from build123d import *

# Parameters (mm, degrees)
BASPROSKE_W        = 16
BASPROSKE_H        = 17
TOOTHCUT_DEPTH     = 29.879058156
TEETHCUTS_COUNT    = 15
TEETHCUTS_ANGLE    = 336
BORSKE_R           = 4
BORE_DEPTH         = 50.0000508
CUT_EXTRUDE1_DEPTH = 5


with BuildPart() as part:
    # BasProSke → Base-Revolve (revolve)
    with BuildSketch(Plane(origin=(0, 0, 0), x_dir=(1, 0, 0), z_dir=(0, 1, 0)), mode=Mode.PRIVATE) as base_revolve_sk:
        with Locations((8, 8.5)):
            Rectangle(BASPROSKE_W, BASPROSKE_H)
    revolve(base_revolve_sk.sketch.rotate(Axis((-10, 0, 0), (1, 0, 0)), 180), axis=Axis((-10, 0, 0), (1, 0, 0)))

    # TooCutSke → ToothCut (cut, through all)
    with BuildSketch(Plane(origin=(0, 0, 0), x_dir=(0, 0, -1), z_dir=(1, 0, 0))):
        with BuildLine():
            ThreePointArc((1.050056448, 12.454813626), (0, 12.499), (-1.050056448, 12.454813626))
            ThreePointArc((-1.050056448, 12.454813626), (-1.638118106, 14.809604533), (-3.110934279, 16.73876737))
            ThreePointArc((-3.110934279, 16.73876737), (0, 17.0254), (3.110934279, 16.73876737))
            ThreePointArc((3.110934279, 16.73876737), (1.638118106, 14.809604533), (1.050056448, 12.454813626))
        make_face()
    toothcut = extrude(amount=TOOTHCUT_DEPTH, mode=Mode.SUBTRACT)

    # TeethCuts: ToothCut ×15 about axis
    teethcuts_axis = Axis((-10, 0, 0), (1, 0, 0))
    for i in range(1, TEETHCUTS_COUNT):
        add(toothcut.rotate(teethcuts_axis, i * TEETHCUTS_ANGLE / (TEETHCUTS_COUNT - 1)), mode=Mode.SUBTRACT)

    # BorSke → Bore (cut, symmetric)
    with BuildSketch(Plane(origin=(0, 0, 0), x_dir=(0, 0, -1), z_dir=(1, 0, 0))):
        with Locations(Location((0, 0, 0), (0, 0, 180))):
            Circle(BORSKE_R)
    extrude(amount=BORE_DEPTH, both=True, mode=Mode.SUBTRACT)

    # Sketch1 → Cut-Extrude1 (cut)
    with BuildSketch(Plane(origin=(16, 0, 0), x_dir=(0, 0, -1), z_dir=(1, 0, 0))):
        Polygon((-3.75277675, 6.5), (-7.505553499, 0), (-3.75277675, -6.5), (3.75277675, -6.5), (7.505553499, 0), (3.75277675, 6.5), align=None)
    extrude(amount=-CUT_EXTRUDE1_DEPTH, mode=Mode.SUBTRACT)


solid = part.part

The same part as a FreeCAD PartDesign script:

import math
import FreeCAD as App
import Part
import Sketcher
Q = App.Units.Quantity

doc = App.newDocument("Part")
body = doc.addObject("PartDesign::Body", "Body")

# Sketch on XZ plane
sketch1 = doc.addObject("Sketcher::SketchObject", "Sketch")
body.addObject(sketch1)
sketch1.AttachmentSupport = (doc.XZ_Plane, [""])
sketch1.MapMode = "FlatFace"
sketch1.addGeometry([
    Part.LineSegment(App.Vector(0, -17, 0), App.Vector(0, 0, 0)),
    Part.LineSegment(App.Vector(0, 0, 0), App.Vector(16, 0, 0)),
    Part.LineSegment(App.Vector(16, 0, 0), App.Vector(16, -17, 0)),
    Part.LineSegment(App.Vector(16, -17, 0), App.Vector(0, -17, 0)),
], False)
sketch1.addConstraint([
    Sketcher.Constraint("Coincident", 0, 2, 1, 1),
    Sketcher.Constraint("Coincident", 1, 2, 2, 1),
    Sketcher.Constraint("Coincident", 2, 2, 3, 1),
    Sketcher.Constraint("Coincident", 3, 2, 0, 1),
    Sketcher.Constraint("Vertical", 0),
    Sketcher.Constraint("Horizontal", 1),
    Sketcher.Constraint("Vertical", 2),
    Sketcher.Constraint("Horizontal", 3),
    Sketcher.Constraint("Coincident", 0, 2, -1, 1),
    Sketcher.Constraint("DistanceX", 1, 1, 1, 2, 16.0),
    Sketcher.Constraint("DistanceY", 0, 1, 0, 2, 17.0),
])
revolution = doc.addObject("PartDesign::Revolution", "Revolution")
body.addObject(revolution)
revolution.Profile = sketch1
revolution.ReferenceAxis = (sketch1, ["H_Axis"])
revolution.Angle = 360

# Sketch on YZ plane
sketch2 = doc.addObject("Sketcher::SketchObject", "Sketch001")
body.addObject(sketch2)
sketch2.AttachmentSupport = (doc.YZ_Plane, [""])
sketch2.MapMode = "FlatFace"
sketch2.addGeometry([
    Part.ArcOfCircle(Part.Circle(App.Vector(0, 0, 0), App.Vector(0, 0, 1), 12.499), math.radians(-4.81917), math.radians(4.81917)),
    Part.ArcOfCircle(Part.Circle(App.Vector(12.208521, -7.044999, 0), App.Vector(0, 0, 1), 6), math.radians(40.971042), math.radians(87.647418)),
    Part.ArcOfCircle(Part.Circle(App.Vector(0, 0, 0), App.Vector(0, 0, 1), 17.0254), math.radians(-10.528414), math.radians(10.528414)),
    Part.ArcOfCircle(Part.Circle(App.Vector(12.208521, 7.044999, 0), App.Vector(0, 0, 1), 6), math.radians(-87.647418), math.radians(-40.971042)),
], False)
sketch2.addConstraint([
    Sketcher.Constraint("Coincident", 0, 1, 1, 2),
    Sketcher.Constraint("Coincident", 1, 1, 2, 1),
    Sketcher.Constraint("Coincident", 2, 2, 3, 2),
    Sketcher.Constraint("Coincident", 3, 1, 0, 2),
    Sketcher.Constraint("Coincident", 0, 3, -1, 1),
    Sketcher.Constraint("Coincident", 2, 3, -1, 1),
    Sketcher.Constraint("Equal", 1, 3),
    Sketcher.Constraint("Symmetric", 1, 3, 3, 3, -1),
    Sketcher.Constraint("Radius", 1, 6.0),
    Sketcher.Constraint("Radius", 0, 12.499),
    Sketcher.Constraint("Radius", 2, 17.0254),
    Sketcher.Constraint("DistanceY", 1, 3, 3, 3, 14.089999),
    Sketcher.Constraint("DistanceX", -1, 1, 1, 3, 12.208521),
])
pocket1 = doc.addObject("PartDesign::Pocket", "Pocket")
body.addObject(pocket1)
pocket1.Profile = sketch2
pocket1.Type = "ThroughAll"
pocket1.Reversed = True
doc.recompute()

polarpattern = doc.addObject("PartDesign::PolarPattern", "PolarPattern")
body.addObject(polarpattern)
polarpattern.Originals = [pocket1]
polarpattern.Axis = (doc.X_Axis, [""])
polarpattern.Angle = 360
polarpattern.Occurrences = 15
body.Tip = polarpattern

# Sketch on YZ plane
sketch3 = doc.addObject("Sketcher::SketchObject", "Sketch002")
body.addObject(sketch3)
sketch3.AttachmentSupport = (doc.YZ_Plane, [""])
sketch3.MapMode = "FlatFace"
sketch3.addGeometry(Part.Circle(App.Vector(0, 0, 0), App.Vector(0, 0, 1), 4), False)
sketch3.addConstraint([
    Sketcher.Constraint("Coincident", 0, 3, -1, 1),
    Sketcher.Constraint("Diameter", 0, 8.0),
])
pocket2 = doc.addObject("PartDesign::Pocket", "Pocket001")
body.addObject(pocket2)
pocket2.Profile = sketch3
pocket2.Length = 100.000102
pocket2.Midplane = True

# Sketch on YZ plane
sketch4 = doc.addObject("Sketcher::SketchObject", "Sketch003")
body.addObject(sketch4)
sketch4.AttachmentSupport = (doc.YZ_Plane, [""])
sketch4.MapMode = "FlatFace"
sketch4.AttachmentOffset = App.Placement(App.Vector(0, 0, 16), App.Rotation())
sketch4.addGeometry([
    Part.LineSegment(App.Vector(6.5, 3.752777, 0), App.Vector(0, 7.505553, 0)),  # 0
    Part.LineSegment(App.Vector(0, 7.505553, 0), App.Vector(-6.5, 3.752777, 0)),  # 1
    Part.LineSegment(App.Vector(-6.5, 3.752777, 0), App.Vector(-6.5, -3.752777, 0)),  # 2
    Part.LineSegment(App.Vector(-6.5, -3.752777, 0), App.Vector(0, -7.505553, 0)),  # 3
    Part.LineSegment(App.Vector(0, -7.505553, 0), App.Vector(6.5, -3.752777, 0)),  # 4
    Part.LineSegment(App.Vector(6.5, -3.752777, 0), App.Vector(6.5, 3.752777, 0)),  # 5
], False)
sketch4.addConstraint([
    Sketcher.Constraint("Coincident", 0, 2, 1, 1),
    Sketcher.Constraint("Coincident", 1, 2, 2, 1),
    Sketcher.Constraint("Coincident", 2, 2, 3, 1),
    Sketcher.Constraint("Coincident", 3, 2, 4, 1),
    Sketcher.Constraint("Coincident", 4, 2, 5, 1),
    Sketcher.Constraint("Coincident", 5, 2, 0, 1),
    Sketcher.Constraint("Vertical", 2),
    Sketcher.Constraint("Vertical", 5),
    Sketcher.Constraint("Symmetric", 0, 2, 3, 2, -1, 1),
    Sketcher.Constraint("Symmetric", 1, 2, 4, 2, -1, 1),
    Sketcher.Constraint("PointOnObject", 0, 2, -2),
    Sketcher.Constraint("Parallel", 0, 3),
    Sketcher.Constraint("Horizontal", 2, 2, 4, 2),
    Sketcher.Constraint("Angle", 0, Q("150 deg")),
    Sketcher.Constraint("DistanceX", 2, 2, 4, 2, 13.0),
    Sketcher.Constraint("DistanceY", 2, 2, 2, 1, 7.505554),
])
pocket3 = doc.addObject("PartDesign::Pocket", "Pocket002")
body.addObject(pocket3)
pocket3.Profile = sketch4
pocket3.Length = 5

doc.recompute()
